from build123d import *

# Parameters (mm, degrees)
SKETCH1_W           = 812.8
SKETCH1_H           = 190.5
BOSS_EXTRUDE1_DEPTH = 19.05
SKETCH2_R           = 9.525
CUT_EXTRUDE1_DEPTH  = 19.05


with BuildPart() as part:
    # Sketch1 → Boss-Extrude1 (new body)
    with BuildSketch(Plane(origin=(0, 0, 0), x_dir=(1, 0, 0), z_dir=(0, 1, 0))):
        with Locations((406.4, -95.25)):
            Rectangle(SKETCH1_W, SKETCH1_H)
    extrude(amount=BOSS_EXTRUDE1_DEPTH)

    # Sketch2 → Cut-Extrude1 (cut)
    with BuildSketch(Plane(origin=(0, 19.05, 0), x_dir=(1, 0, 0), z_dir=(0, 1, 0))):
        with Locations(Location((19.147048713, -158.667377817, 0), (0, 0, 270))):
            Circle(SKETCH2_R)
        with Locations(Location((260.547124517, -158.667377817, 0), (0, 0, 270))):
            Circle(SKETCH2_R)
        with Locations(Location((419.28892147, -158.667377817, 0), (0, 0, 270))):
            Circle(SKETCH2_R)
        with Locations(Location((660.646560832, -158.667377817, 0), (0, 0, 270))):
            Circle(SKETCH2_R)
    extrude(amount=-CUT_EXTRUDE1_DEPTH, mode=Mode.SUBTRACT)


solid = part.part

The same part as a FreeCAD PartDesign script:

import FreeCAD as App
import Part
import Sketcher

V = App.Vector
Q = App.Units.Quantity

doc = App.newDocument("Part")
body = doc.addObject("PartDesign::Body", "Body")

# Sketch on XZ plane
sketch1 = body.newObject("Sketcher::SketchObject", "Sketch")
sketch1.AttachmentSupport = (doc.getObject("XZ_Plane"), [""])
sketch1.MapMode = "FlatFace"
sketch1.addGeometry([
    Part.LineSegment(V(0, 0, 0), V(0, 190, 0)),
    Part.LineSegment(V(0, 190, 0), V(813, 190, 0)),
    Part.LineSegment(V(813, 190, 0), V(813, 0, 0)),
    Part.LineSegment(V(813, 0, 0), V(0, 0, 0)),
], False)
sketch1.addConstraint([
    Sketcher.Constraint("Coincident", 0, 2, 1, 1),
    Sketcher.Constraint("Coincident", 1, 2, 2, 1),
    Sketcher.Constraint("Coincident", 2, 2, 3, 1),
    Sketcher.Constraint("Coincident", 3, 2, 0, 1),
    Sketcher.Constraint("Vertical", 0),
    Sketcher.Constraint("Horizontal", 1),
    Sketcher.Constraint("Vertical", 2),
    Sketcher.Constraint("Horizontal", 3),
    Sketcher.Constraint("Coincident", 3, 2, -1, 1),
    Sketcher.Constraint("DistanceX", 1, 1, 1, 2, Q("32 in")),
    Sketcher.Constraint("DistanceY", 0, 1, 0, 2, Q("7.5 in")),
])
pad1 = body.newObject("PartDesign::Pad", "Pad")
pad1.Profile = sketch1
pad1.Length = Q("0.75 in")
pad1.Reversed = True

# Sketch on XZ plane
sketch2 = body.newObject("Sketcher::SketchObject", "Sketch001")
sketch2.AttachmentSupport = (doc.getObject("XZ_Plane"), [""])
sketch2.MapMode = "FlatFace"
sketch2.AttachmentOffset = App.Placement(V(0, 0, -0.75 * 25.4), App.Rotation())
sketch2.addGeometry([
    Part.Circle(V(19, 159, 0), V(0, 0, 1), 10),
    Part.Circle(V(261, 159, 0), V(0, 0, 1), 10),
    Part.Circle(V(419, 159, 0), V(0, 0, 1), 10),
    Part.Circle(V(661, 159, 0), V(0, 0, 1), 10),
], False)
sketch2.addConstraint([
    Sketcher.Constraint("Equal", 0, 1),
    Sketcher.Constraint("Equal", 1, 2),
    Sketcher.Constraint("Equal", 2, 3),
    Sketcher.Constraint("Horizontal", 0, 3, 1, 3),
    Sketcher.Constraint("Horizontal", 1, 3, 2, 3),
    Sketcher.Constraint("Horizontal", 2, 3, 3, 3),
    Sketcher.Constraint("Diameter", 0, Q("0.75 in")),
    Sketcher.Constraint("DistanceX", -1, 1, 0, 3, 19.147049),
    Sketcher.Constraint("DistanceX", -1, 1, 2, 3, 419.288921),
    Sketcher.Constraint("DistanceX", -1, 1, 3, 3, 660.646561),
    Sketcher.Constraint("DistanceY", -1, 1, 0, 3, 158.667378),
    Sketcher.Constraint("DistanceX", -1, 1, 1, 3, 260.547125),
])
pocket1 = body.newObject("PartDesign::Pocket", "Pocket")
pocket1.Profile = sketch2
pocket1.Length = Q("0.75 in")
pocket1.Reversed = True

doc.recompute()
